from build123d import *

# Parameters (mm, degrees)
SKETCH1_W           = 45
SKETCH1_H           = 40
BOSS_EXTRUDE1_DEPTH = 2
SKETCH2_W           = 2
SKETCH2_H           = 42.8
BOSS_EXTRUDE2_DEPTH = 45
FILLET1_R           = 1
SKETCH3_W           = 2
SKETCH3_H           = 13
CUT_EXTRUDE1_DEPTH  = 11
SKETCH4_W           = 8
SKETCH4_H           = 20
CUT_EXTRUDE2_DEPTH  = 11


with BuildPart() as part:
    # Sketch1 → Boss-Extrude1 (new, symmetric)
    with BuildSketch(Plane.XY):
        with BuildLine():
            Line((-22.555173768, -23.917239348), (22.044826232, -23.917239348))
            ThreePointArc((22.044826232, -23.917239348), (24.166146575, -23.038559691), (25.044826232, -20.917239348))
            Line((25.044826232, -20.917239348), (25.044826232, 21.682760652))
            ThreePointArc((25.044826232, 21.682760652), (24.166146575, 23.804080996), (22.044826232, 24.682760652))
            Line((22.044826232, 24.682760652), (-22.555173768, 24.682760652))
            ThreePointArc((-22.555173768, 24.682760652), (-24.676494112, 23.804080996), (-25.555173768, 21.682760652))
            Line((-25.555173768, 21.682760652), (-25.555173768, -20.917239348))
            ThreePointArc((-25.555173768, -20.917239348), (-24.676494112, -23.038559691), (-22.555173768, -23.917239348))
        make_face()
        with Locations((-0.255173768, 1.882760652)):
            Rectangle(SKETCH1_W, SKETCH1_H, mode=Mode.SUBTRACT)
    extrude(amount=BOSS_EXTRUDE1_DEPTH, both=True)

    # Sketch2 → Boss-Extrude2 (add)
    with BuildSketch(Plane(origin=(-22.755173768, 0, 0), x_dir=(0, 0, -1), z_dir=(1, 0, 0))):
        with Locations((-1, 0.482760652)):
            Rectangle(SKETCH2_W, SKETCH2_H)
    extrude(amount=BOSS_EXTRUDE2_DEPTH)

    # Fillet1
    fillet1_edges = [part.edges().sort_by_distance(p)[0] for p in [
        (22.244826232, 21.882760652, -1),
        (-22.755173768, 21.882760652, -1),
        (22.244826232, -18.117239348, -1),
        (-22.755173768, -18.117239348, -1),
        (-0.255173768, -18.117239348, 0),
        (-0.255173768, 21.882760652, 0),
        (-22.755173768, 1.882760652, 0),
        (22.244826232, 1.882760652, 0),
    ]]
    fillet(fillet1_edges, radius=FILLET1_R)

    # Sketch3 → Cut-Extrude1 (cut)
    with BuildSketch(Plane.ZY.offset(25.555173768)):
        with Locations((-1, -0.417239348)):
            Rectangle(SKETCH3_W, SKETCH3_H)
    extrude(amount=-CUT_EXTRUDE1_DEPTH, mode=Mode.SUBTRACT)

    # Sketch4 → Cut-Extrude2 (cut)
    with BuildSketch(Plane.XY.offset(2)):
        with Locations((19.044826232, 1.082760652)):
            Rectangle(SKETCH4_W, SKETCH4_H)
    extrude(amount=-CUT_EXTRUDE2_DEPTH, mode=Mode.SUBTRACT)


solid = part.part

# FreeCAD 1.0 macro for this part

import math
import FreeCAD as App
import Part
import Sketcher

V = App.Vector
Q = App.Units.Quantity


def edges_at(feature, points):
    """Names of the edges that pass closest to the given points."""
    edges = feature.Shape.Edges
    near = lambda p: min(range(len(edges)), key=lambda i: edges[i].distToShape(Part.Vertex(*p))[0])
    return sorted({f"Edge{near(p) + 1}" for p in points})


def add_polygon(sketch, points):
    """Adds a closed chain of lines whose ends are joined by coincident constraints."""
    first, n = sketch.GeometryCount, len(points)
    for a, b in zip(points, points[1:] + points[:1]):
        sketch.addGeometry(Part.LineSegment(App.Vector(*a, 0), App.Vector(*b, 0)), False)
    for i in range(n):
        sketch.addConstraint(Sketcher.Constraint("Coincident", first + i, 2, first + (i + 1) % n, 1))

doc = App.newDocument("Part")
body = doc.addObject("PartDesign::Body", "Body")

# Sketch on XY plane
sketch1 = doc.addObject("Sketcher::SketchObject", "Sketch")
body.addObject(sketch1)
sketch1.AttachmentSupport = (doc.XY_Plane, [""])
sketch1.MapMode = "FlatFace"
sketch1.addGeometry(Part.LineSegment(V(-22.6, -23.9, 0), V(22, -23.9, 0)), False)  # 0
sketch1.addGeometry(Part.ArcOfCircle(Part.Circle(V(22, -20.9, 0), V(0, 0, 1), 3), math.radians(-90), math.radians(0)), False)  # 1
sketch1.addGeometry(Part.LineSegment(V(25, -20.9, 0), V(25, 21.7, 0)), False)  # 2
sketch1.addGeometry(Part.ArcOfCircle(Part.Circle(V(22, 21.7, 0), V(0, 0, 1), 3), math.radians(0), math.radians(90)), False)  # 3
sketch1.addGeometry(Part.LineSegment(V(22, 24.7, 0), V(-22.6, 24.7, 0)), False)  # 4
sketch1.addGeometry(Part.ArcOfCircle(Part.Circle(V(-22.6, 21.7, 0), V(0, 0, 1), 3), math.radians(90), math.radians(180)), False)  # 5
sketch1.addGeometry(Part.LineSegment(V(-25.6, 21.7, 0), V(-25.6, -20.9, 0)), False)  # 6
sketch1.addGeometry(Part.ArcOfCircle(Part.Circle(V(-22.6, -20.9, 0), V(0, 0, 1), 3), math.radians(180), math.radians(270)), False)  # 7
add_polygon(sketch1, [(22.2, -18.1), (-22.8, -18.1), (-22.8, 21.9), (22.2, 21.9)])  # lines 8-11
sketch1.addConstraint(Sketcher.Constraint("Tangent", 0, 2, 1, 1))
sketch1.addConstraint(Sketcher.Constraint("Tangent", 1, 2, 2, 1))
sketch1.addConstraint(Sketcher.Constraint("Tangent", 2, 2, 3, 1))
sketch1.addConstraint(Sketcher.Constraint("Tangent", 3, 2, 4, 1))
sketch1.addConstraint(Sketcher.Constraint("Tangent", 4, 2, 5, 1))
sketch1.addConstraint(Sketcher.Constraint("Tangent", 5, 2, 6, 1))
sketch1.addConstraint(Sketcher.Constraint("Tangent", 6, 2, 7, 1))
sketch1.addConstraint(Sketcher.Constraint("Tangent", 7, 2, 0, 1))
sketch1.addConstraint(Sketcher.Constraint("Horizontal", 0))
sketch1.addConstraint(Sketcher.Constraint("Vertical", 2))
sketch1.addConstraint(Sketcher.Constraint("Horizontal", 4))
sketch1.addConstraint(Sketcher.Constraint("Vertical", 6))
sketch1.addConstraint(Sketcher.Constraint("Horizontal", 8))
sketch1.addConstraint(Sketcher.Constraint("Vertical", 9))
sketch1.addConstraint(Sketcher.Constraint("Horizontal", 10))
sketch1.addConstraint(Sketcher.Constraint("Vertical", 11))
sketch1.addConstraint(Sketcher.Constraint("Equal", 1, 3))
sketch1.addConstraint(Sketcher.Constraint("Equal", 3, 5))
sketch1.addConstraint(Sketcher.Constraint("Equal", 5, 7))
sketch1.addConstraint(Sketcher.Constraint("Radius", 1, Q("3 mm")))
sketch1.addConstraint(Sketcher.Constraint("DistanceX", 8, 2, 8, 1, Q("45 mm")))
sketch1.addConstraint(Sketcher.Constraint("DistanceY", 9, 1, 9, 2, Q("40 mm")))
sketch1.addConstraint(Sketcher.Constraint("DistanceX", 0, 1, 0, 2, Q("44.6 mm")))
sketch1.addConstraint(Sketcher.Constraint("DistanceY", 2, 1, 2, 2, Q("42.6 mm")))
sketch1.addConstraint(Sketcher.Constraint("DistanceX", 8, 2, 7, 3, Q("0.2 mm")))
sketch1.addConstraint(Sketcher.Constraint("DistanceY", 7, 3, 8, 2, Q("2.8 mm")))
sketch1.addConstraint(Sketcher.Constraint("DistanceY", 1, 3, -1, 1, Q("20.917239 mm")))
sketch1.addConstraint(Sketcher.Constraint("DistanceX", -1, 1, 1, 3, Q("22.044826 mm")))
pad1 = doc.addObject("PartDesign::Pad", "Pad")
body.addObject(pad1)
pad1.Profile = sketch1
pad1.Length = 4
pad1.Midplane = True

# Sketch on YZ plane
sketch2 = doc.addObject("Sketcher::SketchObject", "Sketch001")
body.addObject(sketch2)
sketch2.AttachmentSupport = (doc.YZ_Plane, [""])
sketch2.MapMode = "FlatFace"
sketch2.AttachmentOffset = App.Placement(V(0, 0, -22.755174), App.Rotation())
add_polygon(sketch2, [(21.9, 2), (-20.9, 2), (-20.9, 0), (21.9, 0)])  # lines 0-3
sketch2.addConstraint(Sketcher.Constraint("Horizontal", 0))
sketch2.addConstraint(Sketcher.Constraint("Vertical", 1))
sketch2.addConstraint(Sketcher.Constraint("Horizontal", 2))
sketch2.addConstraint(Sketcher.Constraint("Vertical", 3))
sketch2.addConstraint(Sketcher.Constraint("PointOnObject", 1, 2, -1))
sketch2.addConstraint(Sketcher.Constraint("DistanceY", 1, 2, 1, 1, Q("2 mm")))
sketch2.addConstraint(Sketcher.Constraint("DistanceX", 0, 2, 0, 1, Q("42.8 mm")))
sketch2.addConstraint(Sketcher.Constraint("DistanceX", 0, 2, -1, 1, Q("20.917239 mm")))
pad2 = doc.addObject("PartDesign::Pad", "Pad001")
body.addObject(pad2)
pad2.Profile = sketch2
pad2.Length = 45
doc.recompute()

fillet = doc.addObject("PartDesign::Fillet", "Fillet")
body.addObject(fillet)
fillet.Base = (pad2, edges_at(pad2, [
    (22.245, 21.883, -1),
    (-22.755, 21.883, -1),
    (22.245, -18.117, -1),
    (-22.755, -18.117, -1),
    (-0.255, -18.117, 0),
    (-0.255, 21.883, 0),
    (-22.755, 1.883, 0),
    (22.245, 1.883, 0),
]))
fillet.Radius = 1

# Sketch on YZ plane
sketch3 = doc.addObject("Sketcher::SketchObject", "Sketch002")
body.addObject(sketch3)
sketch3.AttachmentSupport = (doc.YZ_Plane, [""])
sketch3.MapMode = "FlatFace"
sketch3.AttachmentOffset = App.Placement(V(0, 0, -25.555174), App.Rotation())
add_polygon(sketch3, [(6.1, -2), (-6.9, -2), (-6.9, 0), (6.1, 0)])  # lines 0-3
sketch3.addConstraint(Sketcher.Constraint("Horizontal", 0))
sketch3.addConstraint(Sketcher.Constraint("Vertical", 1))
sketch3.addConstraint(Sketcher.Constraint("Horizontal", 2))
sketch3.addConstraint(Sketcher.Constraint("Vertical", 3))
sketch3.addConstraint(Sketcher.Constraint("PointOnObject", 1, 2, -1))
sketch3.addConstraint(Sketcher.Constraint("DistanceX", 0, 2, 0, 1, Q("13 mm")))
sketch3.addConstraint(Sketcher.Constraint("DistanceY", 1, 1, 1, 2, Q("2 mm")))
sketch3.addConstraint(Sketcher.Constraint("DistanceX", 0, 2, -1, 1, Q("6.917239 mm")))
pocket1 = doc.addObject("PartDesign::Pocket", "Pocket")
body.addObject(pocket1)
pocket1.Profile = sketch3
pocket1.Length = 11
pocket1.Reversed = True

# Sketch on XY plane
sketch4 = doc.addObject("Sketcher::SketchObject", "Sketch003")
body.addObject(sketch4)
sketch4.AttachmentSupport = (doc.XY_Plane, [""])
sketch4.MapMode = "FlatFace"
sketch4.AttachmentOffset = App.Placement(V(0, 0, 2), App.Rotation())
add_polygon(sketch4, [(15, 11), (15, -9), (23, -9), (23, 11)])  # lines 0-3
sketch4.addConstraint(Sketcher.Constraint("Vertical", 0))
sketch4.addConstraint(Sketcher.Constraint("Horizontal", 1))
sketch4.addConstraint(Sketcher.Constraint("Vertical", 2))
sketch4.addConstraint(Sketcher.Constraint("Horizontal", 3))
sketch4.addConstraint(Sketcher.Constraint("DistanceX", 1, 1, 1, 2, Q("8 mm")))
sketch4.addConstraint(Sketcher.Constraint("DistanceY", 0, 2, 0, 1, Q("20 mm")))
sketch4.addConstraint(Sketcher.Constraint("DistanceY", 0, 2, -1, 1, Q("8.917239 mm")))
sketch4.addConstraint(Sketcher.Constraint("DistanceX", -1, 1, 0, 2, Q("15.044826 mm")))
pocket2 = doc.addObject("PartDesign::Pocket", "Pocket001")
body.addObject(pocket2)
pocket2.Profile = sketch4
pocket2.Length = 11

doc.recompute()
